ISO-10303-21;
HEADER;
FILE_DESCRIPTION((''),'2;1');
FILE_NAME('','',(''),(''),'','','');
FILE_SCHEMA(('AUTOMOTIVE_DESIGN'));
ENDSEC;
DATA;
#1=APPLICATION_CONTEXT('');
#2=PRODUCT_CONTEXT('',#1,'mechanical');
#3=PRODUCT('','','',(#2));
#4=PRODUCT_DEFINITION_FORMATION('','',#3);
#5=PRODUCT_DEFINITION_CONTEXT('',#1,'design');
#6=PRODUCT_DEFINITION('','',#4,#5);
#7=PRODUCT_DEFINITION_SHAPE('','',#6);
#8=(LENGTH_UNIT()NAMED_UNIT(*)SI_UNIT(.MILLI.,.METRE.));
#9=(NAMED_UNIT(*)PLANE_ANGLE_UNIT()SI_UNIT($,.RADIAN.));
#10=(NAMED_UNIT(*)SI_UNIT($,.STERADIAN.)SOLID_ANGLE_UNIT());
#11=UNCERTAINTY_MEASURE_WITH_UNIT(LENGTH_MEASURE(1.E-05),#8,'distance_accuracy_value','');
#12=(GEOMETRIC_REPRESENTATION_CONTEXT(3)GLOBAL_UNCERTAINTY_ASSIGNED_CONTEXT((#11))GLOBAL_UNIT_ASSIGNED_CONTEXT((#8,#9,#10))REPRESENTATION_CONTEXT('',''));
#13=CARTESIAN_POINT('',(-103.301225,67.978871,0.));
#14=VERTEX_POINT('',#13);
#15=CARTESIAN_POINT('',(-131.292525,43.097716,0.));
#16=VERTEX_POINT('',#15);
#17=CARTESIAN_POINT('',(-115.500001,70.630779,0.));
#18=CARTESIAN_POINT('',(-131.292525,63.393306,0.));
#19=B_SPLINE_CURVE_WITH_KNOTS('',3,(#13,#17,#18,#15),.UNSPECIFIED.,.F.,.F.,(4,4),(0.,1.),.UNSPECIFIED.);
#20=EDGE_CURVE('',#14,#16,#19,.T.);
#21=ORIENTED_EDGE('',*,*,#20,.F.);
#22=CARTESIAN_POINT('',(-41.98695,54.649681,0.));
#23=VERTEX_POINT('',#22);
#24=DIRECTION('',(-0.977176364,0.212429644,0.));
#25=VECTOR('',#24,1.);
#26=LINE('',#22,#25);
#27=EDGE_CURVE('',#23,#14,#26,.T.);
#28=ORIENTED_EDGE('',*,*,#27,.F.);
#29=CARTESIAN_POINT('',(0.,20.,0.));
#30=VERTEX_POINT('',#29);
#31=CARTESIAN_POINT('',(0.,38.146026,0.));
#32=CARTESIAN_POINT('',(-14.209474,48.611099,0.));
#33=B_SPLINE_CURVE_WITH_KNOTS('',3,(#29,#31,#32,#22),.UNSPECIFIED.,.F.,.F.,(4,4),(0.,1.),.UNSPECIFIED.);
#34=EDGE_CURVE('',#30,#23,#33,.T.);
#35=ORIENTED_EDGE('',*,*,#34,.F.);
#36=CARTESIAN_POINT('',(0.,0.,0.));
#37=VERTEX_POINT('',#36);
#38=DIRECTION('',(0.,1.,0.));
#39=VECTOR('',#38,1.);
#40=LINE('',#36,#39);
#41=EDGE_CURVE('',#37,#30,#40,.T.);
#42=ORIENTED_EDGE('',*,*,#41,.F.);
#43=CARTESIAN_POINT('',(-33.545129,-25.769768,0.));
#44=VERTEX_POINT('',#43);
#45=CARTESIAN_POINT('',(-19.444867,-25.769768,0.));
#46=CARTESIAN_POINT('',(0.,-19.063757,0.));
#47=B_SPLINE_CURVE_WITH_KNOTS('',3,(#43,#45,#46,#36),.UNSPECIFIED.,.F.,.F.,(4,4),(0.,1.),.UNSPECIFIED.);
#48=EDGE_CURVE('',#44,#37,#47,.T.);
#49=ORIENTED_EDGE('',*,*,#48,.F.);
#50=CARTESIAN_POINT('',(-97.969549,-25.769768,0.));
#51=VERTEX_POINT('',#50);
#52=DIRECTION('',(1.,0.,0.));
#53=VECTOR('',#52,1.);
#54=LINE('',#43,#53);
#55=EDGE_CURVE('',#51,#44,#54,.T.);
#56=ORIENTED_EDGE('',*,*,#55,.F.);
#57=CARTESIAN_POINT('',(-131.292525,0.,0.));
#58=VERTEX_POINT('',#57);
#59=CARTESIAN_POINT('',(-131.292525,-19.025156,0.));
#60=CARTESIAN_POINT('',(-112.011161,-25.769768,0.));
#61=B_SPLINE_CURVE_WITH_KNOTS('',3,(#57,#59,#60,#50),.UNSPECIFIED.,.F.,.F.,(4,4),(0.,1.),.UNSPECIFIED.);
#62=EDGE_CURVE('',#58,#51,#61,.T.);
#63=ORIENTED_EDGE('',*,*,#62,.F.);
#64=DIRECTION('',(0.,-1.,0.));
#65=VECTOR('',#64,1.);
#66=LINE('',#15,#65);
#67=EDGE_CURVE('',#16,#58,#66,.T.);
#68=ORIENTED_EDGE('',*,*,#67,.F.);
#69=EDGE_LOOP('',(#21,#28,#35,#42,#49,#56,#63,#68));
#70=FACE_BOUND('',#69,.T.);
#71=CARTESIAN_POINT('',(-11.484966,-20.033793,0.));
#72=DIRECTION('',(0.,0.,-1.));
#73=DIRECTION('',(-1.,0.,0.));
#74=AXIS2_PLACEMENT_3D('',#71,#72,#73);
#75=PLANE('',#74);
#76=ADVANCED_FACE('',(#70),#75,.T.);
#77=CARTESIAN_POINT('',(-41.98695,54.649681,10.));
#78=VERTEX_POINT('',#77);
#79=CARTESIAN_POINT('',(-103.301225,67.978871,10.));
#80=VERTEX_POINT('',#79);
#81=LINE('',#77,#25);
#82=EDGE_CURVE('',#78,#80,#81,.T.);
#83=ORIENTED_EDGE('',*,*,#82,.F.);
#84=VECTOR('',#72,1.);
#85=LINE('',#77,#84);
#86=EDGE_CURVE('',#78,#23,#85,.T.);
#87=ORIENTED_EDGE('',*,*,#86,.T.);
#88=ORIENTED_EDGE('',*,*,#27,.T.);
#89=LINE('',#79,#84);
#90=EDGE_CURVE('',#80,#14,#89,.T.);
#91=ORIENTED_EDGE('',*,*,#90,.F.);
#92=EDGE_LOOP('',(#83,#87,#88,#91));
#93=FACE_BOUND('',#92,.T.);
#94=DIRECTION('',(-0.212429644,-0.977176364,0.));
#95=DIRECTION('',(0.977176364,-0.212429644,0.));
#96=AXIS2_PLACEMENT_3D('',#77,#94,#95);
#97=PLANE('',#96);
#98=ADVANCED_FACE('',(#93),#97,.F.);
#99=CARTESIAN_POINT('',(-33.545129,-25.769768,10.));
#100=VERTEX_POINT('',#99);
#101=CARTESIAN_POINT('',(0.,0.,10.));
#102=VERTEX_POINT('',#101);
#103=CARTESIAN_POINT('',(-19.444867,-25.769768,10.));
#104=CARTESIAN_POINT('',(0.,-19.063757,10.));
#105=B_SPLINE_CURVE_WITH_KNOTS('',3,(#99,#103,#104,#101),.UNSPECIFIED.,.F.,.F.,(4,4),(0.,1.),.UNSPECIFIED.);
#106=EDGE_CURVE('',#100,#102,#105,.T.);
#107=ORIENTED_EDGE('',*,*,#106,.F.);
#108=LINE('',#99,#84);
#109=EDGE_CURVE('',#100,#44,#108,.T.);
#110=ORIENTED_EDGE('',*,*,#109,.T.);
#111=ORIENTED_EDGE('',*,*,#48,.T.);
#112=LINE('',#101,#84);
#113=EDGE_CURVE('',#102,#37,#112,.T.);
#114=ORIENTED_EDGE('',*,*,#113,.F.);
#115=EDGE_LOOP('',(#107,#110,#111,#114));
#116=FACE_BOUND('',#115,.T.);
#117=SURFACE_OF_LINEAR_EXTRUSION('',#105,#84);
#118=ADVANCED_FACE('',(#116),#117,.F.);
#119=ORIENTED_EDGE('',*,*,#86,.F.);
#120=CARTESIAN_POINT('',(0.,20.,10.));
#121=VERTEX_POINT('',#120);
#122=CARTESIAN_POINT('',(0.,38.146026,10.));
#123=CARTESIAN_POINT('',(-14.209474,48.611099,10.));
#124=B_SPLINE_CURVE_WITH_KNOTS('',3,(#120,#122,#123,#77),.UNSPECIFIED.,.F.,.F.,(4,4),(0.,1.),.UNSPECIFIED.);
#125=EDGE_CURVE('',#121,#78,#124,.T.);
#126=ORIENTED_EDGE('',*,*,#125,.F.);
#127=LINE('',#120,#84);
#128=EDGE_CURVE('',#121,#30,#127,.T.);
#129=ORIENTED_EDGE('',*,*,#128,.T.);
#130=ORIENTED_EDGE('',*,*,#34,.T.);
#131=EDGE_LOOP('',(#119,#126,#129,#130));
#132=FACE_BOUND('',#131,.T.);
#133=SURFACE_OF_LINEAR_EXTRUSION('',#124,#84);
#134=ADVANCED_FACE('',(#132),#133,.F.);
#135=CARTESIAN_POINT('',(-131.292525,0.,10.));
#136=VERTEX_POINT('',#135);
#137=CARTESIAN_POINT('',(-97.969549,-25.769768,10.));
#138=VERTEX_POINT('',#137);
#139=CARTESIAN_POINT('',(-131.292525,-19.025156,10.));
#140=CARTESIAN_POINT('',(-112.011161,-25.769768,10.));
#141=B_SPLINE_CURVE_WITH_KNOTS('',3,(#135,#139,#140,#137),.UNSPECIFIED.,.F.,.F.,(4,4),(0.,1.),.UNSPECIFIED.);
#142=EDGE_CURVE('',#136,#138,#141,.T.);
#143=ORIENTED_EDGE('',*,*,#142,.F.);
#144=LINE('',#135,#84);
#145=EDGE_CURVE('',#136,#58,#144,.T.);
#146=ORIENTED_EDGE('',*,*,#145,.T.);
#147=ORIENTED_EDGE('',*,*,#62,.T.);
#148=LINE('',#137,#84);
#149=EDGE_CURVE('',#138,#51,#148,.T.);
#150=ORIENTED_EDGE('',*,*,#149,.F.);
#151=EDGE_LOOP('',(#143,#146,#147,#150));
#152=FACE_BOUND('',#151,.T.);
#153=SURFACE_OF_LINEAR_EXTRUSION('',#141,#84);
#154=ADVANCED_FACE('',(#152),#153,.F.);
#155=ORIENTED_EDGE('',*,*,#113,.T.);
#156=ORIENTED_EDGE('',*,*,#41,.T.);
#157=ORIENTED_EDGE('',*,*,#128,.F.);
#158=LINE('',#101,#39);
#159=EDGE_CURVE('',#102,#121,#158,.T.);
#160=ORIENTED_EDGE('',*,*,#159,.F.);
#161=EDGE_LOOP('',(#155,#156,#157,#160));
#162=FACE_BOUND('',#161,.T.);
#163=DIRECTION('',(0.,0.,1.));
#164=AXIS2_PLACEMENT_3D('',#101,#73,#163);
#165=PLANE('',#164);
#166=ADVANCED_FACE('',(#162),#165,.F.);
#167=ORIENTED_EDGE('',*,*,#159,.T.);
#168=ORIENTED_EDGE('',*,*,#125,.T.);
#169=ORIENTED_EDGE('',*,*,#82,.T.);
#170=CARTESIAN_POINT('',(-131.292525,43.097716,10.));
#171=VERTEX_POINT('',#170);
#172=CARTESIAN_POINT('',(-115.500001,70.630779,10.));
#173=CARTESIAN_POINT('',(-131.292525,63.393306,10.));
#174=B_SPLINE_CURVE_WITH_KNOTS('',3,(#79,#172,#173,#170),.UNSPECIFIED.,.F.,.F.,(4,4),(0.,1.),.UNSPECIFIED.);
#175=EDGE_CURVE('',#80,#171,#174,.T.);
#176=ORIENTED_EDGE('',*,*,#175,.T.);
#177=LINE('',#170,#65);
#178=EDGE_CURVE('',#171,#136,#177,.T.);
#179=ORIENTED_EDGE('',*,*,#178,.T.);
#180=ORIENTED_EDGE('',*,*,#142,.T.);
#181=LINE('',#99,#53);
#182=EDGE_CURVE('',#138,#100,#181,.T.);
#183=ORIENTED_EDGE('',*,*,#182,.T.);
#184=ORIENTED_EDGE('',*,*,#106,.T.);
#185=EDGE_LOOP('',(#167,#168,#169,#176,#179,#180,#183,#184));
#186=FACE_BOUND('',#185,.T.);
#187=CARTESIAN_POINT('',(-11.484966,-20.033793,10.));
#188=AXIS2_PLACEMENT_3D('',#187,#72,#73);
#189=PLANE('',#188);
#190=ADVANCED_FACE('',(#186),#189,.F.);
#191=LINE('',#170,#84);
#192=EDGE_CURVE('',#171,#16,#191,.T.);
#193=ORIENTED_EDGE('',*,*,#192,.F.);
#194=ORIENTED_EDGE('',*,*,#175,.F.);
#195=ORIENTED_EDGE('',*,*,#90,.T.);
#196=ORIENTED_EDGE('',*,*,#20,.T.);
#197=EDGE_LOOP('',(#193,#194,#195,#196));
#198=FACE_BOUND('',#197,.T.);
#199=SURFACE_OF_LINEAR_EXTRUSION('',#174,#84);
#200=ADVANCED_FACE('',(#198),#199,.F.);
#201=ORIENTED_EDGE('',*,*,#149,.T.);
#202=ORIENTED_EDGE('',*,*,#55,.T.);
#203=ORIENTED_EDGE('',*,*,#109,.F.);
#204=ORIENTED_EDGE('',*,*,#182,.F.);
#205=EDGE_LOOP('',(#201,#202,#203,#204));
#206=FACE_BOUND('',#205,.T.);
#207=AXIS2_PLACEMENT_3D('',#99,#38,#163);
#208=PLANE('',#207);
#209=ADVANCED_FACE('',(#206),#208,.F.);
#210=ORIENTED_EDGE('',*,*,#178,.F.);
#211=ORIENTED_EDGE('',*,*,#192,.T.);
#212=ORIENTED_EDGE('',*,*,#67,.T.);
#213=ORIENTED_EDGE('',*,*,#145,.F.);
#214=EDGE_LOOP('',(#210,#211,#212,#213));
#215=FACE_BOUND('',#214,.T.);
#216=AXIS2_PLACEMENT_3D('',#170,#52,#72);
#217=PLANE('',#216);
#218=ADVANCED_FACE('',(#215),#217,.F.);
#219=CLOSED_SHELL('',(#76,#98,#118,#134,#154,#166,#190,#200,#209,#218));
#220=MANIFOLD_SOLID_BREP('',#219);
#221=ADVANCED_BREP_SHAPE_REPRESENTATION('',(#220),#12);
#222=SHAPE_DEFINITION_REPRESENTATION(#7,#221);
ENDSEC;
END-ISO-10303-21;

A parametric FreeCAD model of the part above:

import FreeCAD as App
import Part
import Sketcher
from FreeCAD import Vector

doc = App.newDocument("Part")
params = doc.addObject("Spreadsheet::Sheet", "Params")
for row, (alias, value) in enumerate([
    ("pad1_length", "10 mm"),
], start=1):
    params.set(f"A{row}", alias)
    params.set(f"B{row}", "=" + value)
    params.setAlias(f"B{row}", alias)

body = doc.addObject("PartDesign::Body", "Body")

# Sketch on XY plane
sketch1 = body.newObject("Sketcher::SketchObject", "Sketch")
sketch1.AttachmentSupport = (doc.getObject("XY_Plane"), [""])
sketch1.MapMode = "FlatFace"
sketch1.addGeometry(Part.LineSegment(Vector(0, 0, 0), Vector(0, 20, 0)), False)
sketch1.addGeometry(Part.BSplineCurve([Vector(0, 20, 0), Vector(0, 38.146026, 0), Vector(-14.209474, 48.611099, 0), Vector(-41.98695, 54.649681, 0)], [4, 4], [0, 1], False, 3, [1, 1, 1, 1], False), False)
sketch1.addGeometry(Part.LineSegment(Vector(-41.98695, 54.649681, 0), Vector(-103.301225, 67.978871, 0)), False)
sketch1.addGeometry(Part.BSplineCurve([Vector(-103.301225, 67.978871, 0), Vector(-115.500001, 70.630779, 0), Vector(-131.292525, 63.393306, 0), Vector(-131.292525, 43.097716, 0)], [4, 4], [0, 1], False, 3, [1, 1, 1, 1], False), False)
sketch1.addGeometry(Part.LineSegment(Vector(-131.292525, 43.097716, 0), Vector(-131.292525, 0, 0)), False)
sketch1.addGeometry(Part.BSplineCurve([Vector(-97.969549, -25.769768, 0), Vector(-112.011161, -25.769768, 0), Vector(-131.292525, -19.025156, 0), Vector(-131.292525, 0, 0)], [4, 4], [0, 1], False, 3, [1, 1, 1, 1], False), False)
sketch1.addGeometry(Part.LineSegment(Vector(-97.969549, -25.769768, 0), Vector(-33.545129, -25.769768, 0)), False)
sketch1.addGeometry(Part.BSplineCurve([Vector(-33.545129, -25.769768, 0), Vector(-19.444867, -25.769768, 0), Vector(0, -19.063757, 0), Vector(0, 0, 0)], [4, 4], [0, 1], False, 3, [1, 1, 1, 1], False), False)
sketch1.addConstraint(Sketcher.Constraint("Block", 1))
sketch1.addConstraint(Sketcher.Constraint("Block", 3))
sketch1.addConstraint(Sketcher.Constraint("Block", 5))
sketch1.addConstraint(Sketcher.Constraint("Block", 7))
sketch1.addConstraint(Sketcher.Constraint("Coincident", 0, 2, 1, 1))
sketch1.addConstraint(Sketcher.Constraint("Coincident", 1, 2, 2, 1))
sketch1.addConstraint(Sketcher.Constraint("Coincident", 2, 2, 3, 1))
sketch1.addConstraint(Sketcher.Constraint("Coincident", 3, 2, 4, 1))
sketch1.addConstraint(Sketcher.Constraint("Coincident", 4, 2, 5, 2))
sketch1.addConstraint(Sketcher.Constraint("Coincident", 5, 1, 6, 1))
sketch1.addConstraint(Sketcher.Constraint("Coincident", 6, 2, 7, 1))
sketch1.addConstraint(Sketcher.Constraint("Coincident", 7, 2, 0, 1))
pad1 = body.newObject("PartDesign::Pad", "Pad")
pad1.Profile = sketch1
pad1.setExpression("Length", "Params.pad1_length")

doc.recompute()
